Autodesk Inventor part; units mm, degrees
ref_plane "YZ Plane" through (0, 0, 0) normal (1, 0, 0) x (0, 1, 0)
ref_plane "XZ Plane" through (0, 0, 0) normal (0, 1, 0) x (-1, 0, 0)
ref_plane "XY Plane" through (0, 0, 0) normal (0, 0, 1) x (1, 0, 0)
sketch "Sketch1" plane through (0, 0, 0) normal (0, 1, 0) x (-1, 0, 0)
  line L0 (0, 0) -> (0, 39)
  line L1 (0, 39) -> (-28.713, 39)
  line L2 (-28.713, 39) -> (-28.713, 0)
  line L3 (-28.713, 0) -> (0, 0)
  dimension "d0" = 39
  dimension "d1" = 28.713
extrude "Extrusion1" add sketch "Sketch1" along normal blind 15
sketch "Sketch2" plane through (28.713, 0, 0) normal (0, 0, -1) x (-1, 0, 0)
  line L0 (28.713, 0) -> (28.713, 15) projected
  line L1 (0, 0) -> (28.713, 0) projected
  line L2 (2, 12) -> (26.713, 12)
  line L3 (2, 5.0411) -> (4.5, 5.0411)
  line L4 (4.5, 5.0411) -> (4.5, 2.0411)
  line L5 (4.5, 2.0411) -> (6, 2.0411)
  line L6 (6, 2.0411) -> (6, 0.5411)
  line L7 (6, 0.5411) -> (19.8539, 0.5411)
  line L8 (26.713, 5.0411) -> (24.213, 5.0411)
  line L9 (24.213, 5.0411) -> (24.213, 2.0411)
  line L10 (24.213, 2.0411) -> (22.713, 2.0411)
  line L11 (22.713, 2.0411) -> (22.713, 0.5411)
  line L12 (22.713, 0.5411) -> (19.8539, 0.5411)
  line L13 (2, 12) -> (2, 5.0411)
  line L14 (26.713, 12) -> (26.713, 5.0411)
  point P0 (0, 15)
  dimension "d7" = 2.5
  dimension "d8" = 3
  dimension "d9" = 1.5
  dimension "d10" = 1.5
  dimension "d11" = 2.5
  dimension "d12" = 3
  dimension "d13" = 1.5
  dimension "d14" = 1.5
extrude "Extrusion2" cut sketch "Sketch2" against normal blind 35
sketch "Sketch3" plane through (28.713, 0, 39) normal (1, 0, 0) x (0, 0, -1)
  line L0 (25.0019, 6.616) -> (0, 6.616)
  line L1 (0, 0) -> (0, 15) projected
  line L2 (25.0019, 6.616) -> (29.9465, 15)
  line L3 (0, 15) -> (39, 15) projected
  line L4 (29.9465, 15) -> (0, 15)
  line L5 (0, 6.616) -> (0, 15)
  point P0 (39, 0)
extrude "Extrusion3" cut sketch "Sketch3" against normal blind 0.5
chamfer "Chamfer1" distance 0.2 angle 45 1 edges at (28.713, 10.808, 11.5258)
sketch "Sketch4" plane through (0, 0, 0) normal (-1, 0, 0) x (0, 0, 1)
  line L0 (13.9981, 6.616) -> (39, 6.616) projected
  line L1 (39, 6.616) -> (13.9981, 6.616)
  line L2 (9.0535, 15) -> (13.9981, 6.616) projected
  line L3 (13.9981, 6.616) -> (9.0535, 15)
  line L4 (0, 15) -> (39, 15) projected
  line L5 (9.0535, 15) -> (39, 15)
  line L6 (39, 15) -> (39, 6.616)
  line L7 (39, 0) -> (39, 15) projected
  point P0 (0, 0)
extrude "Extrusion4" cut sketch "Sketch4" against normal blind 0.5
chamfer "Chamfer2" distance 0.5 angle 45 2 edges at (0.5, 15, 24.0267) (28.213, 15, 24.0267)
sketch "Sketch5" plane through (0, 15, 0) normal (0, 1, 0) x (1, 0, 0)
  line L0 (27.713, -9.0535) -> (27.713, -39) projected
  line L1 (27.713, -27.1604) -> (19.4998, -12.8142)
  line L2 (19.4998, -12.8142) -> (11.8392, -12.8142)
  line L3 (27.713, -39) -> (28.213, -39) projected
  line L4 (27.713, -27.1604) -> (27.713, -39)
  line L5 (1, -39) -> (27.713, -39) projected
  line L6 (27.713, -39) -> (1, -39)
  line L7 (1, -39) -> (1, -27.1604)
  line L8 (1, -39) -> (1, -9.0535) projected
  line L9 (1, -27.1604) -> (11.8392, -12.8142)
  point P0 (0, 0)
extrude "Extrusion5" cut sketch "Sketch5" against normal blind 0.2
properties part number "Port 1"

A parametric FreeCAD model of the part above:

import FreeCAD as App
import Part
import Sketcher
from FreeCAD import Vector
Q = App.Units.Quantity


def edges_at(feature, points):
    """Names of the edges that pass closest to the given points."""
    edges = feature.Shape.Edges
    near = lambda p: min(range(len(edges)), key=lambda i: edges[i].distToShape(Part.Vertex(*p))[0])
    return sorted({f"Edge{near(p) + 1}" for p in points})


def add_polygon(sketch, points):
    """Adds a closed chain of lines whose ends are joined by coincident constraints."""
    first, n = sketch.GeometryCount, len(points)
    for a, b in zip(points, points[1:] + points[:1]):
        sketch.addGeometry(Part.LineSegment(App.Vector(*a, 0), App.Vector(*b, 0)), False)
    for i in range(n):
        sketch.addConstraint(Sketcher.Constraint("Coincident", first + i, 2, first + (i + 1) % n, 1))

doc = App.newDocument("Part")
body = doc.addObject("PartDesign::Body", "Body")

# Sketch on XZ plane
sketch1 = body.newObject("Sketcher::SketchObject", "Sketch")
sketch1.AttachmentSupport = (doc.getObject("XZ_Plane"), [""])
sketch1.MapMode = "FlatFace"
add_polygon(sketch1, [(29, 0), (0, 0), (0, 39), (29, 39)])  # lines 0-3
sketch1.addConstraint([
    Sketcher.Constraint("Horizontal", 0),
    Sketcher.Constraint("Vertical", 1),
    Sketcher.Constraint("Horizontal", 2),
    Sketcher.Constraint("Vertical", 3),
    Sketcher.Constraint("Coincident", 0, 2, -1, 1),
    Sketcher.Constraint("DistanceY", 1, 1, 1, 2, 39.0),
    Sketcher.Constraint("DistanceX", 0, 2, 0, 1, 28.713),
])
pad1 = body.newObject("PartDesign::Pad", "Pad")
pad1.Profile = sketch1
pad1.Length = 15
pad1.Reversed = True

# Sketch on XY plane
sketch2 = body.newObject("Sketcher::SketchObject", "Sketch001")
sketch2.AttachmentSupport = (doc.getObject("XY_Plane"), [""])
sketch2.MapMode = "FlatFace"
add_polygon(sketch2, [(2, 12), (26.7, 12), (26.7, 5), (24.2, 5), (24.2, 2), (22.7, 2), (22.7, 0.5), (6, 0.5), (6, 2), (4.5, 2), (4.5, 5), (2, 5)])  # lines 0-11
sketch2.addConstraint([
    Sketcher.Constraint("Horizontal", 0),
    Sketcher.Constraint("Vertical", 1),
    Sketcher.Constraint("Horizontal", 2),
    Sketcher.Constraint("Vertical", 3),
    Sketcher.Constraint("Horizontal", 4),
    Sketcher.Constraint("Vertical", 5),
    Sketcher.Constraint("Horizontal", 6),
    Sketcher.Constraint("Vertical", 7),
    Sketcher.Constraint("Horizontal", 8),
    Sketcher.Constraint("Vertical", 9),
    Sketcher.Constraint("Horizontal", 10),
    Sketcher.Constraint("Vertical", 11),
    Sketcher.Constraint("Horizontal", 4, 2, 7, 2),
    Sketcher.Constraint("Horizontal", 2, 2, 9, 2),
    Sketcher.Constraint("Equal", 4, 8),
    Sketcher.Constraint("Equal", 2, 10),
    Sketcher.Constraint("Equal", 8, 5),
    Sketcher.Constraint("DistanceY", 3, 2, 3, 1, 3.0),
    Sketcher.Constraint("DistanceX", 2, 2, 2, 1, 2.5),
    Sketcher.Constraint("DistanceX", 4, 2, 4, 1, 1.5),
    Sketcher.Constraint("DistanceY", -1, 1, 0, 2, 12.0),
    Sketcher.Constraint("DistanceX", -1, 1, 6, 2, 6.0),
    Sketcher.Constraint("DistanceX", 0, 1, 0, 2, 24.713),
    Sketcher.Constraint("DistanceY", 1, 2, 1, 1, 6.959),
])
pocket1 = body.newObject("PartDesign::Pocket", "Pocket")
pocket1.Profile = sketch2
pocket1.Length = 35
pocket1.Reversed = True

# Sketch on YZ plane
sketch3 = body.newObject("Sketcher::SketchObject", "Sketch002")
sketch3.AttachmentSupport = (doc.getObject("YZ_Plane"), [""])
sketch3.MapMode = "FlatFace"
sketch3.AttachmentOffset = App.Placement(Vector(0, 0, 28.713), App.Rotation())
add_polygon(sketch3, [(7, 39), (7, 14), (15, 9), (15, 39)])  # lines 0-3
sketch3.addConstraint([
    Sketcher.Constraint("Vertical", 0),
    Sketcher.Constraint("Vertical", 2),
    Sketcher.Constraint("Horizontal", 3),
    Sketcher.Constraint("DistanceX", -1, 1, 1, 2, 15.0),
    Sketcher.Constraint("DistanceY", -1, 1, 2, 2, 39.0),
    Sketcher.Constraint("Angle", 1, Q("-30.5307 deg")),
    Sketcher.Constraint("DistanceX", 3, 2, 3, 1, 8.384),
    Sketcher.Constraint("DistanceY", 0, 2, 0, 1, 25.002),
])
pocket2 = body.newObject("PartDesign::Pocket", "Pocket001")
pocket2.Profile = sketch3
pocket2.Length = 0.5
doc.recompute()

chamfer = body.newObject("PartDesign::Chamfer", "Chamfer")
chamfer.Base = (pocket2, edges_at(pocket2, [(28.713, 10.808, 11.526)]))
chamfer.Size = 0.2

# Sketch on YZ plane
sketch4 = body.newObject("Sketcher::SketchObject", "Sketch003")
sketch4.AttachmentSupport = (doc.getObject("YZ_Plane"), [""])
sketch4.MapMode = "FlatFace"
add_polygon(sketch4, [(15, 9), (7, 14), (7, 39), (15, 39)])  # lines 0-3
sketch4.addConstraint([
    Sketcher.Constraint("Vertical", 1),
    Sketcher.Constraint("Horizontal", 2),
    Sketcher.Constraint("Vertical", 3),
    Sketcher.Constraint("DistanceY", -1, 1, 1, 2, 39.0),
    Sketcher.Constraint("DistanceX", -1, 1, 2, 2, 15.0),
    Sketcher.Constraint("Angle", 0, Q("149.4693 deg")),
    Sketcher.Constraint("DistanceX", 2, 1, 2, 2, 8.384),
    Sketcher.Constraint("DistanceY", 1, 1, 1, 2, 25.002),
])
pocket3 = body.newObject("PartDesign::Pocket", "Pocket002")
pocket3.Profile = sketch4
pocket3.Length = 0.5
pocket3.Reversed = True
doc.recompute()

chamfer2 = body.newObject("PartDesign::Chamfer", "Chamfer001")
chamfer2.Base = (pocket3, edges_at(pocket3, [(0.5, 15, 24.027), (28.213, 15, 24.027)]))
chamfer2.Size = 0.5

# Sketch on XZ plane
sketch5 = body.newObject("Sketcher::SketchObject", "Sketch004")
sketch5.AttachmentSupport = (doc.getObject("XZ_Plane"), [""])
sketch5.MapMode = "FlatFace"
sketch5.AttachmentOffset = App.Placement(Vector(0, 0, -15), App.Rotation())
add_polygon(sketch5, [(28, 39), (28, 27), (19, 13), (12, 13), (1, 27), (1, 39)])  # lines 0-5
sketch5.addConstraint([
    Sketcher.Constraint("Vertical", 0),
    Sketcher.Constraint("Horizontal", 2),
    Sketcher.Constraint("Vertical", 4),
    Sketcher.Constraint("Horizontal", 5),
    Sketcher.Constraint("Horizontal", 0, 2, 3, 2),
    Sketcher.Constraint("DistanceX", -1, 1, 3, 2, 1.0),
    Sketcher.Constraint("DistanceY", -1, 1, 4, 2, 39.0),
    Sketcher.Constraint("Angle", 1, Q("-119.7911 deg")),
    Sketcher.Constraint("DistanceX", 5, 1, 5, 2, 26.713),
    Sketcher.Constraint("Distance", 1, 16.531),
    Sketcher.Constraint("DistanceX", 2, 2, 2, 1, 7.6606),
    Sketcher.Constraint("DistanceY", 0, 2, 0, 1, 11.8396),
])
pocket4 = body.newObject("PartDesign::Pocket", "Pocket003")
pocket4.Profile = sketch5
pocket4.Length = 0.2
pocket4.Reversed = True

doc.recompute()
